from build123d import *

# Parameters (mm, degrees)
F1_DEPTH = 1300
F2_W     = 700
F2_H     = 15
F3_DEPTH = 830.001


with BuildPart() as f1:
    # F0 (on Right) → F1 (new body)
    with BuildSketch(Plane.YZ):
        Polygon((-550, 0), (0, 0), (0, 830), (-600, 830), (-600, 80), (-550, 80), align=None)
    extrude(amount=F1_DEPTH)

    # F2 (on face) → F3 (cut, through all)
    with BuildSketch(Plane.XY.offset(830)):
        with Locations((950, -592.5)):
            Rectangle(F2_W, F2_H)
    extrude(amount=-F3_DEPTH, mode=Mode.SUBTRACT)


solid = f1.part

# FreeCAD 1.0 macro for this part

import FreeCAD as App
import Part
import Sketcher

V = App.Vector
Q = App.Units.Quantity


def add_polygon(sketch, points):
    """Adds a closed chain of lines whose ends are joined by coincident constraints."""
    first, n = sketch.GeometryCount, len(points)
    for a, b in zip(points, points[1:] + points[:1]):
        sketch.addGeometry(Part.LineSegment(App.Vector(*a, 0), App.Vector(*b, 0)), False)
    for i in range(n):
        sketch.addConstraint(Sketcher.Constraint("Coincident", first + i, 2, first + (i + 1) % n, 1))

doc = App.newDocument("Part")
body = doc.addObject("PartDesign::Body", "Body")

# Sketch on YZ plane
sketch1 = body.newObject("Sketcher::SketchObject", "Sketch")
sketch1.AttachmentSupport = (doc.getObject("YZ_Plane"), [""])
sketch1.MapMode = "FlatFace"
add_polygon(sketch1, [(-550, 0), (0, 0), (0, 830), (-600, 830), (-600, 80), (-550, 80)])  # lines 0-5
sketch1.addConstraint([
    Sketcher.Constraint("Horizontal", 0),
    Sketcher.Constraint("Vertical", 1),
    Sketcher.Constraint("Horizontal", 2),
    Sketcher.Constraint("Vertical", 3),
    Sketcher.Constraint("Horizontal", 4),
    Sketcher.Constraint("Vertical", 5),
    Sketcher.Constraint("Coincident", 0, 2, -1, 1),
    Sketcher.Constraint("DistanceX", 0, 1, 0, 2, Q("550 mm")),
    Sketcher.Constraint("DistanceX", 2, 2, 2, 1, Q("600 mm")),
    Sketcher.Constraint("DistanceY", 1, 1, 1, 2, Q("830 mm")),
    Sketcher.Constraint("DistanceY", 3, 2, 3, 1, Q("750 mm")),
])
pad1 = body.newObject("PartDesign::Pad", "Pad")
pad1.Profile = sketch1
pad1.Length = 1300

# Sketch on XY plane
sketch2 = body.newObject("Sketcher::SketchObject", "Sketch001")
sketch2.AttachmentSupport = (doc.getObject("XY_Plane"), [""])
sketch2.MapMode = "FlatFace"
sketch2.AttachmentOffset = App.Placement(V(0, 0, 830), App.Rotation())
add_polygon(sketch2, [(600, -585), (600, -600), (1300, -600), (1300, -585)])  # lines 0-3
sketch2.addConstraint([
    Sketcher.Constraint("Vertical", 0),
    Sketcher.Constraint("Horizontal", 1),
    Sketcher.Constraint("Vertical", 2),
    Sketcher.Constraint("Horizontal", 3),
    Sketcher.Constraint("DistanceX", 1, 1, 1, 2, Q("700 mm")),
    Sketcher.Constraint("DistanceY", 0, 2, 0, 1, Q("15 mm")),
    Sketcher.Constraint("DistanceX", -1, 1, 0, 2, Q("600 mm")),
    Sketcher.Constraint("DistanceY", 0, 2, -1, 1, Q("600 mm")),
])
pocket1 = body.newObject("PartDesign::Pocket", "Pocket")
pocket1.Profile = sketch2
pocket1.Type = "ThroughAll"

doc.recompute()
